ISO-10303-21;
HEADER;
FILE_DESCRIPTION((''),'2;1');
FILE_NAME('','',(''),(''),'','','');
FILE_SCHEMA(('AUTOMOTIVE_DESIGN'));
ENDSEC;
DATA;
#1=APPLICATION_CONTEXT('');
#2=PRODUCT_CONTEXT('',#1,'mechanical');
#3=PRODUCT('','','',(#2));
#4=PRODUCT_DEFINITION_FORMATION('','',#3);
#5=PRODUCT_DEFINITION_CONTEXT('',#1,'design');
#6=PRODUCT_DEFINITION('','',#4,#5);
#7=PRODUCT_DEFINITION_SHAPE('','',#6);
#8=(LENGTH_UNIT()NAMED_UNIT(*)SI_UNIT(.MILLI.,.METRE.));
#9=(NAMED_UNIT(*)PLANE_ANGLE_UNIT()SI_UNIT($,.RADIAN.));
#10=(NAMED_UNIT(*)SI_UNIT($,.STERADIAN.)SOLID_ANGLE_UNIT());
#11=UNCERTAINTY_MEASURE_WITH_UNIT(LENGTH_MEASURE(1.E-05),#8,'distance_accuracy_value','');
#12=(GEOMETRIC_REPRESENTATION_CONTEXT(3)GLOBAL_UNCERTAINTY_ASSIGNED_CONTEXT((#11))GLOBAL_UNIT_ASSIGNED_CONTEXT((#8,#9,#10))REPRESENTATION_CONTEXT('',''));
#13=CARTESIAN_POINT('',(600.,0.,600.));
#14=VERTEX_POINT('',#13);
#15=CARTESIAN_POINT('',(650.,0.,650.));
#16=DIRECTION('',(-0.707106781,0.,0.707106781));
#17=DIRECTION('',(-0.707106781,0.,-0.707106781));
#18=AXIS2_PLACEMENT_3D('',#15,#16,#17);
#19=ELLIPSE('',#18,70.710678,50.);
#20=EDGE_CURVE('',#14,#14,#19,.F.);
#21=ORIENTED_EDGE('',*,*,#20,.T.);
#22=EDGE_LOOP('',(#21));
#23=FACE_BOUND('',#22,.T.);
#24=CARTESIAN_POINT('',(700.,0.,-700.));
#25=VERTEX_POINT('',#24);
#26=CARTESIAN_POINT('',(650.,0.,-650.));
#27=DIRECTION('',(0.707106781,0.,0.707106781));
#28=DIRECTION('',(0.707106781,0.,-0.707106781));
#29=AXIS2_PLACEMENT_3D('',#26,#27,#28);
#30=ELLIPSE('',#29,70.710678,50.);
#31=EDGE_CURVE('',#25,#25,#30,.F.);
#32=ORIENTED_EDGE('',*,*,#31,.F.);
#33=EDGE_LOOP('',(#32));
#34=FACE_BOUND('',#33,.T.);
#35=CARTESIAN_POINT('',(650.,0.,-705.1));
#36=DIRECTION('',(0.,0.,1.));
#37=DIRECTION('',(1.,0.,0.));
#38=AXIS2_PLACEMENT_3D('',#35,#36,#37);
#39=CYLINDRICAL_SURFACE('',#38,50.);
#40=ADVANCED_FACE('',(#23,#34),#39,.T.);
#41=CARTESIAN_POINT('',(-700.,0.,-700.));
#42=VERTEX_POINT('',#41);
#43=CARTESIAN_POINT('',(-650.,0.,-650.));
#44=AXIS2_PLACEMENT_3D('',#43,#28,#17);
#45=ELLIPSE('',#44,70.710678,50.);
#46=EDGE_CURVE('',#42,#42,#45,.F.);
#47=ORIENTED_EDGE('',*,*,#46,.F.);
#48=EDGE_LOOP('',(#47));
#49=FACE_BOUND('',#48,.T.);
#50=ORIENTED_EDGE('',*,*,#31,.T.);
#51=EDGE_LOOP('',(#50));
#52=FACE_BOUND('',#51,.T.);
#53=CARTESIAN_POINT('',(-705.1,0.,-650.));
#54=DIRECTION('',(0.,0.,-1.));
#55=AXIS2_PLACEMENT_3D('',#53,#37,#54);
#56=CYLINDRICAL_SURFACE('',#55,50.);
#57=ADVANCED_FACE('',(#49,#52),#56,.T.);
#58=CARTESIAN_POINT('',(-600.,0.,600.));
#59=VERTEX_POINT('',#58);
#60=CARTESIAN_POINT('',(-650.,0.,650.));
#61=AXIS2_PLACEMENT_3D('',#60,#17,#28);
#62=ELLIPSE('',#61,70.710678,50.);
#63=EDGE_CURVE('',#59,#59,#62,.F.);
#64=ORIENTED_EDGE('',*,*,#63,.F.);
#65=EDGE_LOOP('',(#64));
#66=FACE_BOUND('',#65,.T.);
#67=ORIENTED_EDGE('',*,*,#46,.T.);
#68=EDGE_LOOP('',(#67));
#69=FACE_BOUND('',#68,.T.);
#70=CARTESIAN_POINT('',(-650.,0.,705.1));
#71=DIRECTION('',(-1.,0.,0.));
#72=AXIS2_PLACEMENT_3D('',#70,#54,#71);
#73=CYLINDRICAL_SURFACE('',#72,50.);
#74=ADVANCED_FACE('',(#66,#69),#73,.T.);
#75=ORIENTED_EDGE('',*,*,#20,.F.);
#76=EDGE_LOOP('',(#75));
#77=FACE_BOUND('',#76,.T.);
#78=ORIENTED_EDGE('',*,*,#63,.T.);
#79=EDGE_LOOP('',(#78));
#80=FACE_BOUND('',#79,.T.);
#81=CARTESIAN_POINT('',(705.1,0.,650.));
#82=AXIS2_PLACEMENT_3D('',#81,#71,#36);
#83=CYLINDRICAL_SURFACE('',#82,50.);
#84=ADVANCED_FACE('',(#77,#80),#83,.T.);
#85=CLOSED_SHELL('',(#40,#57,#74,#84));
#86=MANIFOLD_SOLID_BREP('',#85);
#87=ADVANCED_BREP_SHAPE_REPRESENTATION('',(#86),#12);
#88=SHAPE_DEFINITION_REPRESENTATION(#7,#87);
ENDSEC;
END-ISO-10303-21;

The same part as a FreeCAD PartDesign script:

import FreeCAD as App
import Part
import Sketcher
from FreeCAD import Vector
Q = App.Units.Quantity


def add_polygon(sketch, points):
    """Adds a closed chain of lines whose ends are joined by coincident constraints."""
    first, n = sketch.GeometryCount, len(points)
    for a, b in zip(points, points[1:] + points[:1]):
        sketch.addGeometry(Part.LineSegment(App.Vector(*a, 0), App.Vector(*b, 0)), False)
    for i in range(n):
        sketch.addConstraint(Sketcher.Constraint("Coincident", first + i, 2, first + (i + 1) % n, 1))

doc = App.newDocument("Part")
body = doc.addObject("PartDesign::Body", "Body")

# Sketch on YZ plane
sketch1 = body.newObject("Sketcher::SketchObject", "Sketch")
sketch1.AttachmentSupport = (doc.getObject("YZ_Plane"), [""])
sketch1.MapMode = "FlatFace"
sketch1.AttachmentOffset = App.Placement(Vector(0, 0, -650), App.Rotation())
sketch1.addGeometry(Part.Circle(Vector(0, -650, 0), Vector(0, 0, 1), 50), False)
sketch1.addConstraint(Sketcher.Constraint("PointOnObject", 0, 3, -2))
sketch1.addConstraint(Sketcher.Constraint("Diameter", 0, Q("100 mm")))
sketch1.addConstraint(Sketcher.Constraint("DistanceY", 0, 3, -1, 1, Q("650 mm")))

# Sketch on XZ plane
sketch2 = body.newObject("Sketcher::SketchObject", "Sketch001")
sketch2.AttachmentSupport = (doc.getObject("XZ_Plane"), [""])
sketch2.MapMode = "FlatFace"
add_polygon(sketch2, [(-650, -650), (650, -650), (650, 650), (-650, 650)])  # lines 0-3
sketch2.addConstraint(Sketcher.Constraint("Horizontal", 0))
sketch2.addConstraint(Sketcher.Constraint("Vertical", 1))
sketch2.addConstraint(Sketcher.Constraint("Horizontal", 2))
sketch2.addConstraint(Sketcher.Constraint("Vertical", 3))
sketch2.addConstraint(Sketcher.Constraint("Symmetric", 0, 2, 2, 2, -1, 1))
sketch2.addConstraint(Sketcher.Constraint("Equal", 2, 1))
sketch2.addConstraint(Sketcher.Constraint("DistanceX", 0, 1, 0, 2, Q("1300 mm")))
doc.recompute()

additivepipe = body.newObject("PartDesign::AdditivePipe", "AdditivePipe")
additivepipe.Profile = sketch1
additivepipe.Spine = (sketch2, ["Edge1", "Edge2", "Edge3", "Edge4"])
additivepipe.Transition = "Right corner"

doc.recompute()
